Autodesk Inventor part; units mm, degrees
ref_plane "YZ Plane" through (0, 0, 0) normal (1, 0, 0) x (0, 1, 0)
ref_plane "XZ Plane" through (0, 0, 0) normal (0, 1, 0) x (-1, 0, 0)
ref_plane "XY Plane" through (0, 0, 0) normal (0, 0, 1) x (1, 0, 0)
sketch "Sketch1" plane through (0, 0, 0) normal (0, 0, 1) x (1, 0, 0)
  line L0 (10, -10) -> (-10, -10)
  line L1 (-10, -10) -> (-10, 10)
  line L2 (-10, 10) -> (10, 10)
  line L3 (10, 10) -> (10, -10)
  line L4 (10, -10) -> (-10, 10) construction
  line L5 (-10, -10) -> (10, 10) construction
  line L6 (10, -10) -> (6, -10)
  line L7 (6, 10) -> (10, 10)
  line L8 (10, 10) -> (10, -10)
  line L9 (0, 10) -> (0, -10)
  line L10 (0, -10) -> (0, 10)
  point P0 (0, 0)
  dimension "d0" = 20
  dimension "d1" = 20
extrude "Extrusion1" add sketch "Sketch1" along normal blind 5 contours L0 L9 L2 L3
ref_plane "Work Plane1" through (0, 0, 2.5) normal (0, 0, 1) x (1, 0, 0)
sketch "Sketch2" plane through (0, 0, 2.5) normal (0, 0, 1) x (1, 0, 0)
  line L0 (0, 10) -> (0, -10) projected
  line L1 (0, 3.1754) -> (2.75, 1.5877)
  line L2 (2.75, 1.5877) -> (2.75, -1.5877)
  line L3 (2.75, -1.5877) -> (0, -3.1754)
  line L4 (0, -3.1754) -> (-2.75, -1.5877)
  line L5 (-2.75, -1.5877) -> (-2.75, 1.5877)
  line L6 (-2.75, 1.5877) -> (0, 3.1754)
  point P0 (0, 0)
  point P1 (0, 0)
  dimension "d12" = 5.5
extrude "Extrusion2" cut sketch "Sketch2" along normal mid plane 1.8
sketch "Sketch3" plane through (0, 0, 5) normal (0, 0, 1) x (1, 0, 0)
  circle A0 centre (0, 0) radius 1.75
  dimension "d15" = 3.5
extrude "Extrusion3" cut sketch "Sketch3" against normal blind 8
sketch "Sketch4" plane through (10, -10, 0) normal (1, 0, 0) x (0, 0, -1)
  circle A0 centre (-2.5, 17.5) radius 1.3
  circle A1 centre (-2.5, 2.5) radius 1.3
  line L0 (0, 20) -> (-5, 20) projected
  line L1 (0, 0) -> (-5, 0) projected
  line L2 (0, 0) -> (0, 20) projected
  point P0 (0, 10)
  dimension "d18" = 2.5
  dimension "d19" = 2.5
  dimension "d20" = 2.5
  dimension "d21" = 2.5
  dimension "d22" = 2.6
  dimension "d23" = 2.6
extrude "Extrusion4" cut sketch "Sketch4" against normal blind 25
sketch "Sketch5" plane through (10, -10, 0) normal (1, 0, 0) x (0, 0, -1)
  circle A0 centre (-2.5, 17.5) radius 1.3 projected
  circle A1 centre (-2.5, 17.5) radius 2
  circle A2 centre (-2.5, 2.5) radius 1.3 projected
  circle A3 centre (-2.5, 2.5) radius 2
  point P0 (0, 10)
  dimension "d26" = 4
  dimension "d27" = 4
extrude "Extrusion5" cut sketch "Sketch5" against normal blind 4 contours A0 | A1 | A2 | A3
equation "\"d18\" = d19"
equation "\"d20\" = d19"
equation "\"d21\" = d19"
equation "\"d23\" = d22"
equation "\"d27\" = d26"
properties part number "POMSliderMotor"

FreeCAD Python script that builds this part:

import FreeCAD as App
import Part
import Sketcher
from FreeCAD import Vector
Q = App.Units.Quantity


def add_polygon(sketch, points):
    """Adds a closed chain of lines whose ends are joined by coincident constraints."""
    first, n = sketch.GeometryCount, len(points)
    for a, b in zip(points, points[1:] + points[:1]):
        sketch.addGeometry(Part.LineSegment(App.Vector(*a, 0), App.Vector(*b, 0)), False)
    for i in range(n):
        sketch.addConstraint(Sketcher.Constraint("Coincident", first + i, 2, first + (i + 1) % n, 1))

doc = App.newDocument("Part")
body = doc.addObject("PartDesign::Body", "Body")

# Sketch on XY plane
sketch1 = body.newObject("Sketcher::SketchObject", "Sketch")
sketch1.AttachmentSupport = (doc.getObject("XY_Plane"), [""])
sketch1.MapMode = "FlatFace"
add_polygon(sketch1, [(0, -10), (10, -10), (10, 10), (0, 10)])  # lines 0-3
sketch1.addConstraint([
    Sketcher.Constraint("Horizontal", 0),
    Sketcher.Constraint("Vertical", 1),
    Sketcher.Constraint("Horizontal", 2),
    Sketcher.Constraint("Vertical", 3),
    Sketcher.Constraint("Symmetric", 2, 2, 3, 2, -1, 1),
    Sketcher.Constraint("DistanceY", 1, 1, 1, 2, Q("20 mm")),
    Sketcher.Constraint("DistanceX", 0, 1, 0, 2, Q("10 mm")),
])
pad1 = body.newObject("PartDesign::Pad", "Pad")
pad1.Profile = sketch1
pad1.Length = 5

# Sketch on XY plane
sketch2 = body.newObject("Sketcher::SketchObject", "Sketch001")
sketch2.AttachmentSupport = (doc.getObject("XY_Plane"), [""])
sketch2.MapMode = "FlatFace"
sketch2.AttachmentOffset = App.Placement(Vector(0, 0, 2.5), App.Rotation())
add_polygon(sketch2, [(2.8, 1.6), (0, 3.2), (-2.8, 1.6), (-2.8, -1.6), (0, -3.2), (2.8, -1.6)])  # lines 0-5
sketch2.addConstraint([
    Sketcher.Constraint("Vertical", 2),
    Sketcher.Constraint("Vertical", 5),
    Sketcher.Constraint("Symmetric", 0, 2, 3, 2, -1, 1),
    Sketcher.Constraint("Symmetric", 1, 2, 4, 2, -1, 1),
    Sketcher.Constraint("PointOnObject", 0, 2, -2),
    Sketcher.Constraint("Parallel", 0, 3),
    Sketcher.Constraint("Horizontal", 2, 2, 4, 2),
    Sketcher.Constraint("DistanceX", 2, 2, 4, 2, Q("5.5 mm")),
    Sketcher.Constraint("Angle", 0, Q("150.0002 deg")),
    Sketcher.Constraint("DistanceY", 2, 2, 2, 1, Q("3.1754 mm")),
])
pocket1 = body.newObject("PartDesign::Pocket", "Pocket")
pocket1.Profile = sketch2
pocket1.Length = 1.8
pocket1.Midplane = True

# Sketch on XY plane
sketch3 = body.newObject("Sketcher::SketchObject", "Sketch002")
sketch3.AttachmentSupport = (doc.getObject("XY_Plane"), [""])
sketch3.MapMode = "FlatFace"
sketch3.AttachmentOffset = App.Placement(Vector(0, 0, 5), App.Rotation())
sketch3.addGeometry(Part.Circle(Vector(0, 0, 0), Vector(0, 0, 1), 1.8), False)
sketch3.addConstraint([
    Sketcher.Constraint("Coincident", 0, 3, -1, 1),
    Sketcher.Constraint("Diameter", 0, Q("3.5 mm")),
])
pocket2 = body.newObject("PartDesign::Pocket", "Pocket001")
pocket2.Profile = sketch3
pocket2.Length = 8

# Sketch on YZ plane
sketch4 = body.newObject("Sketcher::SketchObject", "Sketch003")
sketch4.AttachmentSupport = (doc.getObject("YZ_Plane"), [""])
sketch4.MapMode = "FlatFace"
sketch4.AttachmentOffset = App.Placement(Vector(0, 0, 10), App.Rotation())
sketch4.addGeometry([
    Part.Circle(Vector(7.5, 2.5, 0), Vector(0, 0, 1), 1.3),
    Part.Circle(Vector(-7.5, 2.5, 0), Vector(0, 0, 1), 1.3),
], False)
sketch4.addConstraint([
    Sketcher.Constraint("Equal", 0, 1),
    Sketcher.Constraint("Symmetric", 0, 3, 1, 3, -2),
    Sketcher.Constraint("Diameter", 0, Q("2.6 mm")),
    Sketcher.Constraint("DistanceY", -1, 1, 0, 3, Q("2.5 mm")),
    Sketcher.Constraint("DistanceX", 1, 3, 0, 3, Q("15 mm")),
])
pocket3 = body.newObject("PartDesign::Pocket", "Pocket002")
pocket3.Profile = sketch4
pocket3.Length = 25

# Sketch on YZ plane
sketch5 = body.newObject("Sketcher::SketchObject", "Sketch004")
sketch5.AttachmentSupport = (doc.getObject("YZ_Plane"), [""])
sketch5.MapMode = "FlatFace"
sketch5.AttachmentOffset = App.Placement(Vector(0, 0, 10), App.Rotation())
sketch5.addGeometry([
    Part.Circle(Vector(7.5, 2.5, 0), Vector(0, 0, 1), 2),
    Part.Circle(Vector(-7.5, 2.5, 0), Vector(0, 0, 1), 2),
], False)
sketch5.addConstraint([
    Sketcher.Constraint("Equal", 0, 1),
    Sketcher.Constraint("Symmetric", 0, 3, 1, 3, -2),
    Sketcher.Constraint("Diameter", 0, Q("4 mm")),
    Sketcher.Constraint("DistanceX", 1, 3, 0, 3, Q("15 mm")),
    Sketcher.Constraint("DistanceY", -1, 1, 0, 3, Q("2.5 mm")),
])
pocket4 = body.newObject("PartDesign::Pocket", "Pocket003")
pocket4.Profile = sketch5
pocket4.Length = 4

doc.recompute()
